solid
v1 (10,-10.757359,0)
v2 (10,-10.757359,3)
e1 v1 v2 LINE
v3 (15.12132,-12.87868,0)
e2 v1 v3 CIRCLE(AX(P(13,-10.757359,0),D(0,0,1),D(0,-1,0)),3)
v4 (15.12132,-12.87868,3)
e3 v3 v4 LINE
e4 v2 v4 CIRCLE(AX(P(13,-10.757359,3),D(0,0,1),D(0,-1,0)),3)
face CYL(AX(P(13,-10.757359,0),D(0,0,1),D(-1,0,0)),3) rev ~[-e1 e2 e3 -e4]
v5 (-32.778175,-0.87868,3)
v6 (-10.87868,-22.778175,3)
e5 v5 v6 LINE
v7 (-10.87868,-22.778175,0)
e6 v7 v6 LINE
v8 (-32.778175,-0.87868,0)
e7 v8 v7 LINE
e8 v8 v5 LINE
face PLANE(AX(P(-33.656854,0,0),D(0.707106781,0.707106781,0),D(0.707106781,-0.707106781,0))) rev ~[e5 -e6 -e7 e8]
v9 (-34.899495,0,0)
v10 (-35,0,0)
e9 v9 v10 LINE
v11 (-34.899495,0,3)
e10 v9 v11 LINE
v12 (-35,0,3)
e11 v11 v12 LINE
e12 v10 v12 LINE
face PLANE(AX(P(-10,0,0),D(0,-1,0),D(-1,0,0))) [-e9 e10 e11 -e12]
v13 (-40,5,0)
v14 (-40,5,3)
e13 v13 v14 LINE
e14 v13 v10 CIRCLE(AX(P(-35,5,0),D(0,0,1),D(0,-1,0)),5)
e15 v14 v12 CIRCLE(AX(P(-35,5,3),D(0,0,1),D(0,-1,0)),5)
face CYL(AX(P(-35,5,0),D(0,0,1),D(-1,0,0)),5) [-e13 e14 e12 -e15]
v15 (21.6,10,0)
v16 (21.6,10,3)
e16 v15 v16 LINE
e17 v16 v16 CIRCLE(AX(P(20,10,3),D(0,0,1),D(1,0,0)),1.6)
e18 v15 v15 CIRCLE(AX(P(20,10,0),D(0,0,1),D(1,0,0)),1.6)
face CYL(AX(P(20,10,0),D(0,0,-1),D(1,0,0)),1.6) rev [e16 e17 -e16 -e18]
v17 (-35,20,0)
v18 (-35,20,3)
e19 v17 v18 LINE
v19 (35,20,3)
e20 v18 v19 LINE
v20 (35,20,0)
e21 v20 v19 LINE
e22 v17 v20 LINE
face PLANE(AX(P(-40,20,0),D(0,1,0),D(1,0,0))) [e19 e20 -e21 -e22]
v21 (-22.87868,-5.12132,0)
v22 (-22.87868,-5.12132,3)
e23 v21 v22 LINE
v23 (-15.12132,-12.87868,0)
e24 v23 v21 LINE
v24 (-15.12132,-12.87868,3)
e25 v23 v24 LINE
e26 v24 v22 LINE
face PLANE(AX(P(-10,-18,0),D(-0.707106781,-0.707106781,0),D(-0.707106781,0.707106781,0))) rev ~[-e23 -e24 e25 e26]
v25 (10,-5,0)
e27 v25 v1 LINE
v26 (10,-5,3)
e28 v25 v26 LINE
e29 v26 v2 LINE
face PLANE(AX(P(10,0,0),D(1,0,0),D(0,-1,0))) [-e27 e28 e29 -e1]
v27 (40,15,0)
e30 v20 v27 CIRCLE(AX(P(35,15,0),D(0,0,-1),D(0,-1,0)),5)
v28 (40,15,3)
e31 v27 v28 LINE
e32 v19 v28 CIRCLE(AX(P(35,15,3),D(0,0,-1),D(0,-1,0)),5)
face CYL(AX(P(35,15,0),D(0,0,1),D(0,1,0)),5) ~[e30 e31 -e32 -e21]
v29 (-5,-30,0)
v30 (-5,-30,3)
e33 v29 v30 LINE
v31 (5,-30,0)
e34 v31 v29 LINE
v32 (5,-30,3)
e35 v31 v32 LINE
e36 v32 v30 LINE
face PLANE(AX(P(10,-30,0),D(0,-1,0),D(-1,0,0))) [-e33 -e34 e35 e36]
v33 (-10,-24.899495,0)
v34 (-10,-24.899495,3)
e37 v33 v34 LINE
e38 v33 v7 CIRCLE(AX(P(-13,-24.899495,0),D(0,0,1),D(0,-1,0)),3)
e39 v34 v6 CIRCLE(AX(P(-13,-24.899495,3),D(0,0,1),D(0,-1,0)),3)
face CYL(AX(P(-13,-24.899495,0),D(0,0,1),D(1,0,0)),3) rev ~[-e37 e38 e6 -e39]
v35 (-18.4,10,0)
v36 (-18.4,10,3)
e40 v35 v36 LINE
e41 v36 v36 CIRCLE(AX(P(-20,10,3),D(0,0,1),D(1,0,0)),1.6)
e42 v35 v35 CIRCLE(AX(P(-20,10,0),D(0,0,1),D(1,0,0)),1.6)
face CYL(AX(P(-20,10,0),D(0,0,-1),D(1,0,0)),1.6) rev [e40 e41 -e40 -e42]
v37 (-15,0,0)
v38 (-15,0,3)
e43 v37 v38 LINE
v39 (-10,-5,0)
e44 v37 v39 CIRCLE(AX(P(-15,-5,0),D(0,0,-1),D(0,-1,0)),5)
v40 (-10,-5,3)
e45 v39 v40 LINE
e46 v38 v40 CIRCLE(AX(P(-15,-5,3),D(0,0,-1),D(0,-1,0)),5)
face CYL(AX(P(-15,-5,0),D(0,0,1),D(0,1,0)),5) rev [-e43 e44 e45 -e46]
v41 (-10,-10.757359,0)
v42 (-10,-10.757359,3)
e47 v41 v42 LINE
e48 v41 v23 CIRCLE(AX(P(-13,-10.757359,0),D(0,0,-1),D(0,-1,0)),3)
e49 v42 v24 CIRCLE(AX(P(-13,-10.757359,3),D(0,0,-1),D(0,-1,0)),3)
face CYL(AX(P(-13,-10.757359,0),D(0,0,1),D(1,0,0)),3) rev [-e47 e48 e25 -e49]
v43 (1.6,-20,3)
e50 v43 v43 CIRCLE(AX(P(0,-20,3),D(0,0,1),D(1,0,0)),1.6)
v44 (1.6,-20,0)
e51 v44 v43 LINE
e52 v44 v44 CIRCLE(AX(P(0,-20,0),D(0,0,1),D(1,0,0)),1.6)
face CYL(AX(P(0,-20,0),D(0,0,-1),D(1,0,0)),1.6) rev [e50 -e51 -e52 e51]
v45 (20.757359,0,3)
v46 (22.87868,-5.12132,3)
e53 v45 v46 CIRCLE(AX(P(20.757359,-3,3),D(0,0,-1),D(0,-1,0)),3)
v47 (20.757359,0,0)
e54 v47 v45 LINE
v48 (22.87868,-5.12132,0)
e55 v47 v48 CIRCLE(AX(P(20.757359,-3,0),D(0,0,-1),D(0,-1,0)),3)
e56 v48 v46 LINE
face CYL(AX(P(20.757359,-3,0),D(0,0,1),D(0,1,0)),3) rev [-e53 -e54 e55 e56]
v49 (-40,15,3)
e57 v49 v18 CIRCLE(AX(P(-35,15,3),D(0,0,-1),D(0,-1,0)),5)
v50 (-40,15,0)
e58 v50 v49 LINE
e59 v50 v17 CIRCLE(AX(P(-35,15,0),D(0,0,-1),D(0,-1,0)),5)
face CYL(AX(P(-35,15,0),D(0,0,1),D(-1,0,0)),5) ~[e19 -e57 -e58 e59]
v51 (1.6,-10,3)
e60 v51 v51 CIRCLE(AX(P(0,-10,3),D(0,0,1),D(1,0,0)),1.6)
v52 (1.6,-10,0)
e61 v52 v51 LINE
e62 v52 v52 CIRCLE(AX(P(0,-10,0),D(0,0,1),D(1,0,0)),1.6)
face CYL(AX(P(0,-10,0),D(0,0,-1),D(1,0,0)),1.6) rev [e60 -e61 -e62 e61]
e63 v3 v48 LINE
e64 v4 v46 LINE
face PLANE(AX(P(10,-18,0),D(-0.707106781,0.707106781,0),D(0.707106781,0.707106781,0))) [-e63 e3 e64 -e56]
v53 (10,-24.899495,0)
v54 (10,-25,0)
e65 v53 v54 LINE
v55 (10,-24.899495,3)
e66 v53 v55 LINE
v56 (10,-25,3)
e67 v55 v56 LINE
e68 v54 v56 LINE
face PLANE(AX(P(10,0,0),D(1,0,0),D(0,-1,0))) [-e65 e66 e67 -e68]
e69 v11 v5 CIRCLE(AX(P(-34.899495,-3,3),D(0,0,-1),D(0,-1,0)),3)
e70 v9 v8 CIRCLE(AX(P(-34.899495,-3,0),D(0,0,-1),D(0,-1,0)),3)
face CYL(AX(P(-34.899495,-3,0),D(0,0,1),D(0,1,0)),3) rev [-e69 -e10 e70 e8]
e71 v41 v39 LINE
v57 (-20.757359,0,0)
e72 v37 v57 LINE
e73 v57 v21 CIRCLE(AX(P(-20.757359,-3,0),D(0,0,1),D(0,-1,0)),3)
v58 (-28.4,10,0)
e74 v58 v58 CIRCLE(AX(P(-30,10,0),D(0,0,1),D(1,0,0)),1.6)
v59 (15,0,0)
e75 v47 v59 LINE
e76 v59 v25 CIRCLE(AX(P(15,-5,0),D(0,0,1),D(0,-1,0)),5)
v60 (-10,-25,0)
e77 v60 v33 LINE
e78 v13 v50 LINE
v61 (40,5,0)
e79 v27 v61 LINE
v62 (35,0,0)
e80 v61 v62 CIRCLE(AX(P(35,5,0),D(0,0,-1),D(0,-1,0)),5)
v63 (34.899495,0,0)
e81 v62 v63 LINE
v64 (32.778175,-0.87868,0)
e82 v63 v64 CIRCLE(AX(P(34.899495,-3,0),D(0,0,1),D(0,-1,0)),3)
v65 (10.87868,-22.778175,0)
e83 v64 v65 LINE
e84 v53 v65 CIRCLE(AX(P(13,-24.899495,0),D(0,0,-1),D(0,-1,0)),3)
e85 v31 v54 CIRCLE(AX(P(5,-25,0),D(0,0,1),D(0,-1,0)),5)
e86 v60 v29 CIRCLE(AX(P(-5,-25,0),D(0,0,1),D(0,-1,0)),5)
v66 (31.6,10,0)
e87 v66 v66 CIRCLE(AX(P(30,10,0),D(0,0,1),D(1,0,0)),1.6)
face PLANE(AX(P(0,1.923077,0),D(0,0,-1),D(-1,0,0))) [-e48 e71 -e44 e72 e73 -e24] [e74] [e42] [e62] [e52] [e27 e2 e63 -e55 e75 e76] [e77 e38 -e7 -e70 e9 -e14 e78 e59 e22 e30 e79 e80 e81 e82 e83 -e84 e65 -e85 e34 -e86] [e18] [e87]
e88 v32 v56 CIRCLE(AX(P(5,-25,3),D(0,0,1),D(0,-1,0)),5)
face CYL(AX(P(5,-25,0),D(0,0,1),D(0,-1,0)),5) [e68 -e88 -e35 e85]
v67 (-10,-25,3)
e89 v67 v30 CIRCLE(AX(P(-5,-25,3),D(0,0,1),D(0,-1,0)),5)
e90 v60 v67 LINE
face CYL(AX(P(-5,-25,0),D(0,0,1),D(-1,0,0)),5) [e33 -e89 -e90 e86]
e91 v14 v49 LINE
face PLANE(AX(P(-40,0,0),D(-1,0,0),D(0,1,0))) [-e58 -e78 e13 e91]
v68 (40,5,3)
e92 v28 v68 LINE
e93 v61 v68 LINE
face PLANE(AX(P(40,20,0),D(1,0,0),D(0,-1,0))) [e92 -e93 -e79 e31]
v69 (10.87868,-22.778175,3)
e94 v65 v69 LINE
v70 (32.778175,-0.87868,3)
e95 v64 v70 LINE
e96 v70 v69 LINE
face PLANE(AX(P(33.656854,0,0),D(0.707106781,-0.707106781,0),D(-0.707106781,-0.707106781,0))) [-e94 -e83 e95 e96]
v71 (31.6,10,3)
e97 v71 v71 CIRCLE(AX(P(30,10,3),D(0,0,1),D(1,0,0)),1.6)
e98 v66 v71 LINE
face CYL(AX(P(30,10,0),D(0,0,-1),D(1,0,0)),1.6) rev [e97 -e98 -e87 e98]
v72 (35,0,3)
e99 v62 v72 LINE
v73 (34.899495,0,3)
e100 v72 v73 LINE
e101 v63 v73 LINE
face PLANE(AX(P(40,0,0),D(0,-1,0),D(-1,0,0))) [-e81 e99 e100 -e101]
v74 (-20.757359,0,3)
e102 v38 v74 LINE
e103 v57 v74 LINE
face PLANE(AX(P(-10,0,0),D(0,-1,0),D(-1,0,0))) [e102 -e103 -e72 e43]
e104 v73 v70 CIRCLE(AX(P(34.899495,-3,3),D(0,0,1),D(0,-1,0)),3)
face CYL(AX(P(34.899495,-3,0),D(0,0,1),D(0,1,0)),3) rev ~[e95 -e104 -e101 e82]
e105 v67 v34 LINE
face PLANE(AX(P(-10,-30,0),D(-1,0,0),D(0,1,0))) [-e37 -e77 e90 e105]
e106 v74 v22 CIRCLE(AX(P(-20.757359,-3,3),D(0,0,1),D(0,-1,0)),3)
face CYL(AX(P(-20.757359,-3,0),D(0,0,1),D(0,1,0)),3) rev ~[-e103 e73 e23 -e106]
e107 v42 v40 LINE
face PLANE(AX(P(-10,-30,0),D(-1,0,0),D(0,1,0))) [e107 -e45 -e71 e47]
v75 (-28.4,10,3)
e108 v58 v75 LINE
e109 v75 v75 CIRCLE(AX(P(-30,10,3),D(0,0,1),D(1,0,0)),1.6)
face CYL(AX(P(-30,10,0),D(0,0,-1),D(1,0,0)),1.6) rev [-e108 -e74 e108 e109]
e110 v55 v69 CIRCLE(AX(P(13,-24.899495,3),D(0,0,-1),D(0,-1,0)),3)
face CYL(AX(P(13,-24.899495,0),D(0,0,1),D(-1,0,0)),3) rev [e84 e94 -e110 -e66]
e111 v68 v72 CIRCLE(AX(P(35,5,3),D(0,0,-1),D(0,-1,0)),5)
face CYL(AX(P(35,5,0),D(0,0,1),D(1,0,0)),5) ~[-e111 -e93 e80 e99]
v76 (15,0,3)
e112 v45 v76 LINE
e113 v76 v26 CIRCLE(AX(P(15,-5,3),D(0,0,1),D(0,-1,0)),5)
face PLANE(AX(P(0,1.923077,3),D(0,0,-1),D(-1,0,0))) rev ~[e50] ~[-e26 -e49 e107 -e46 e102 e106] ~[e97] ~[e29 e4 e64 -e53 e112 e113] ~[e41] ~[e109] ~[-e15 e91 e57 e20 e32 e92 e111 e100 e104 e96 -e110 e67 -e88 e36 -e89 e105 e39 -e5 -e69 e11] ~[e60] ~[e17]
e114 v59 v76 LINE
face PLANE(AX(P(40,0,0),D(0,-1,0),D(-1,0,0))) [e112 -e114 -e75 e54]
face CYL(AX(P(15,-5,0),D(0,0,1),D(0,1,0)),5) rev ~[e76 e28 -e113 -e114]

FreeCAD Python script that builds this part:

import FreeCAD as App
import Part
import Sketcher

V = App.Vector
Q = App.Units.Quantity


def edges_at(feature, points):
    """Names of the edges that pass closest to the given points."""
    edges = feature.Shape.Edges
    near = lambda p: min(range(len(edges)), key=lambda i: edges[i].distToShape(Part.Vertex(*p))[0])
    return sorted({f"Edge{near(p) + 1}" for p in points})


def add_polygon(sketch, points):
    """Adds a closed chain of lines whose ends are joined by coincident constraints."""
    first, n = sketch.GeometryCount, len(points)
    for a, b in zip(points, points[1:] + points[:1]):
        sketch.addGeometry(Part.LineSegment(App.Vector(*a, 0), App.Vector(*b, 0)), False)
    for i in range(n):
        sketch.addConstraint(Sketcher.Constraint("Coincident", first + i, 2, first + (i + 1) % n, 1))

doc = App.newDocument("Part")
body = doc.addObject("PartDesign::Body", "Body")

# Sketch on XY plane
sketch1 = body.newObject("Sketcher::SketchObject", "Sketch")
sketch1.AttachmentSupport = (doc.getObject("XY_Plane"), [""])
sketch1.MapMode = "FlatFace"
add_polygon(sketch1, [(-40, 20), (-40, 0), (-10, 0), (-10, -30), (10, -30), (10, 0), (40, 0), (40, 20)])  # lines 0-7
sketch1.addGeometry(Part.Circle(V(0, -20, 0), V(0, 0, 1), 1.6), False)  # 8
sketch1.addGeometry(Part.Circle(V(0, -10, 0), V(0, 0, 1), 1.6), False)  # 9
sketch1.addGeometry(Part.Circle(V(30, 10, 0), V(0, 0, 1), 1.6), False)  # 10
sketch1.addGeometry(Part.Circle(V(20, 10, 0), V(0, 0, 1), 1.6), False)  # 11
sketch1.addGeometry(Part.Circle(V(-20, 10, 0), V(0, 0, 1), 1.6), False)  # 12
sketch1.addGeometry(Part.Circle(V(-30, 10, 0), V(0, 0, 1), 1.6), False)  # 13
sketch1.addConstraint([
    Sketcher.Constraint("Vertical", 0),
    Sketcher.Constraint("Horizontal", 1),
    Sketcher.Constraint("Vertical", 2),
    Sketcher.Constraint("Horizontal", 3),
    Sketcher.Constraint("Vertical", 4),
    Sketcher.Constraint("Horizontal", 5),
    Sketcher.Constraint("Vertical", 6),
    Sketcher.Constraint("Horizontal", 7),
    Sketcher.Constraint("Equal", 8, 9),
    Sketcher.Constraint("Equal", 9, 10),
    Sketcher.Constraint("Equal", 10, 11),
    Sketcher.Constraint("Equal", 11, 12),
    Sketcher.Constraint("Equal", 12, 13),
    Sketcher.Constraint("Symmetric", 1, 2, 4, 2, -1, 1),
    Sketcher.Constraint("Symmetric", 11, 3, 12, 3, -2),
    Sketcher.Constraint("Symmetric", 10, 3, 13, 3, -2),
    Sketcher.Constraint("Symmetric", 0, 2, 5, 2, -2),
    Sketcher.Constraint("PointOnObject", 8, 3, -2),
    Sketcher.Constraint("PointOnObject", 9, 3, -2),
    Sketcher.Constraint("Horizontal", 10, 3, 11, 3),
    Sketcher.Constraint("Equal", 3, 0),
    Sketcher.Constraint("Equal", 5, 2),
    Sketcher.Constraint("Diameter", 8, Q("3.2 mm")),
    Sketcher.Constraint("DistanceX", 1, 1, 1, 2, Q("30 mm")),
    Sketcher.Constraint("DistanceX", 3, 1, 3, 2, Q("20 mm")),
    Sketcher.Constraint("DistanceY", 8, 3, -1, 1, Q("20 mm")),
    Sketcher.Constraint("DistanceY", 9, 3, -1, 1, Q("10 mm")),
    Sketcher.Constraint("DistanceX", -1, 1, 10, 3, Q("30 mm")),
    Sketcher.Constraint("DistanceY", -1, 1, 10, 3, Q("10 mm")),
    Sketcher.Constraint("DistanceX", -1, 1, 11, 3, Q("20 mm")),
])
pad1 = body.newObject("PartDesign::Pad", "Pad")
pad1.Profile = sketch1
pad1.Length = 3
doc.recompute()

fillet = body.newObject("PartDesign::Fillet", "Fillet")
fillet.Base = (pad1, edges_at(pad1, [
    (-40, 0, 1.5),
    (-40, 20, 1.5),
    (40, 20, 1.5),
    (40, 0, 1.5),
    (10, 0, 1.5),
    (10, -30, 1.5),
    (-10, -30, 1.5),
    (-10, 0, 1.5),
]))
fillet.Radius = 5

# Sketch on XY plane
sketch2 = body.newObject("Sketcher::SketchObject", "Sketch001")
sketch2.AttachmentSupport = (doc.getObject("XY_Plane"), [""])
sketch2.MapMode = "FlatFace"
add_polygon(sketch2, [(34, 0), (10, -24), (10, -18), (28, 0)])  # lines 0-3
add_polygon(sketch2, [(-28, 0), (-10, -18), (-10, -24), (-34, 0)])  # lines 4-7
sketch2.addConstraint([
    Sketcher.Constraint("Vertical", 1),
    Sketcher.Constraint("Horizontal", 3),
    Sketcher.Constraint("Vertical", 5),
    Sketcher.Constraint("Horizontal", 7),
    Sketcher.Constraint("Symmetric", 3, 2, 6, 2, -1, 1),
    Sketcher.Constraint("Symmetric", 1, 2, 4, 2, -2),
    Sketcher.Constraint("Symmetric", 2, 2, 7, 2, -2),
    Sketcher.Constraint("Parallel", 0, 2),
    Sketcher.Constraint("Perpendicular", 2, 4),
    Sketcher.Constraint("Parallel", 4, 6),
    Sketcher.Constraint("DistanceX", -1, 1, 0, 2, Q("10 mm")),
    Sketcher.Constraint("DistanceY", 1, 2, -1, 1, Q("18 mm")),
    Sketcher.Constraint("DistanceX", 3, 1, 3, 2, Q("5.656854 mm")),
])
pad2 = body.newObject("PartDesign::Pad", "Pad001")
pad2.Profile = sketch2
pad2.Length = 3
doc.recompute()

fillet2 = body.newObject("PartDesign::Fillet", "Fillet001")
fillet2.Base = (pad2, edges_at(pad2, [
    (33.657, 0, 1.5),
    (28, 0, 1.5),
    (10, -18, 1.5),
    (10, -23.657, 1.5),
    (-10, -23.657, 1.5),
    (-10, -18, 1.5),
    (-28, 0, 1.5),
    (-33.657, 0, 1.5),
]))
fillet2.Radius = 3

doc.recompute()
